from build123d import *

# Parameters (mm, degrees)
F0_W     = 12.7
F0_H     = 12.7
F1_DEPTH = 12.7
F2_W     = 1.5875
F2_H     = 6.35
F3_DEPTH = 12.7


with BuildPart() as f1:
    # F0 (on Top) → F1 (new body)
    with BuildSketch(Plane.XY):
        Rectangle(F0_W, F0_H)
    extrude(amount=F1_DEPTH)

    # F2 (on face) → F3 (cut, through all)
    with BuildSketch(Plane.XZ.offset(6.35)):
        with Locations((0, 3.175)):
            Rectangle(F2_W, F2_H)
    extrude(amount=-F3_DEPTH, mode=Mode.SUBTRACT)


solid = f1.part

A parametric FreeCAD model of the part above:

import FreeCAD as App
import Part
import Sketcher
from FreeCAD import Vector
Q = App.Units.Quantity


def add_polygon(sketch, points):
    """Adds a closed chain of lines whose ends are joined by coincident constraints."""
    first, n = sketch.GeometryCount, len(points)
    for a, b in zip(points, points[1:] + points[:1]):
        sketch.addGeometry(Part.LineSegment(App.Vector(*a, 0), App.Vector(*b, 0)), False)
    for i in range(n):
        sketch.addConstraint(Sketcher.Constraint("Coincident", first + i, 2, first + (i + 1) % n, 1))

doc = App.newDocument("Part")
body = doc.addObject("PartDesign::Body", "Body")

# Sketch on XY plane
sketch1 = doc.addObject("Sketcher::SketchObject", "Sketch")
body.addObject(sketch1)
sketch1.AttachmentSupport = (doc.XY_Plane, [""])
sketch1.MapMode = "FlatFace"
add_polygon(sketch1, [(-6.35, 6.35), (-6.35, -6.35), (6.35, -6.35), (6.35, 6.35)])  # lines 0-3
sketch1.addConstraint(Sketcher.Constraint("Vertical", 0))
sketch1.addConstraint(Sketcher.Constraint("Horizontal", 1))
sketch1.addConstraint(Sketcher.Constraint("Vertical", 2))
sketch1.addConstraint(Sketcher.Constraint("Horizontal", 3))
sketch1.addConstraint(Sketcher.Constraint("Symmetric", 0, 2, 2, 2, -1, 1))
sketch1.addConstraint(Sketcher.Constraint("Equal", 3, 0))
sketch1.addConstraint(Sketcher.Constraint("DistanceX", 1, 1, 1, 2, Q("0.5 in")))
pad1 = doc.addObject("PartDesign::Pad", "Pad")
body.addObject(pad1)
pad1.Profile = sketch1
pad1.Length = Q("0.5 in")

# Sketch on XZ plane
sketch2 = doc.addObject("Sketcher::SketchObject", "Sketch001")
body.addObject(sketch2)
sketch2.AttachmentSupport = (doc.XZ_Plane, [""])
sketch2.MapMode = "FlatFace"
sketch2.AttachmentOffset = App.Placement(Vector(0, 0, 0.25 * 25.4), App.Rotation())
add_polygon(sketch2, [(-0.79375, 6.35), (-0.79375, 0), (0.79375, 0), (0.79375, 6.35)])  # lines 0-3
sketch2.addConstraint(Sketcher.Constraint("Vertical", 0))
sketch2.addConstraint(Sketcher.Constraint("Horizontal", 1))
sketch2.addConstraint(Sketcher.Constraint("Vertical", 2))
sketch2.addConstraint(Sketcher.Constraint("Horizontal", 3))
sketch2.addConstraint(Sketcher.Constraint("Symmetric", 0, 2, 1, 2, -1, 1))
sketch2.addConstraint(Sketcher.Constraint("DistanceY", 0, 2, 0, 1, Q("0.25 in")))
sketch2.addConstraint(Sketcher.Constraint("DistanceX", 1, 1, 1, 2, Q("0.0625 in")))
pocket1 = doc.addObject("PartDesign::Pocket", "Pocket")
body.addObject(pocket1)
pocket1.Profile = sketch2
pocket1.Type = "ThroughAll"

doc.recompute()
